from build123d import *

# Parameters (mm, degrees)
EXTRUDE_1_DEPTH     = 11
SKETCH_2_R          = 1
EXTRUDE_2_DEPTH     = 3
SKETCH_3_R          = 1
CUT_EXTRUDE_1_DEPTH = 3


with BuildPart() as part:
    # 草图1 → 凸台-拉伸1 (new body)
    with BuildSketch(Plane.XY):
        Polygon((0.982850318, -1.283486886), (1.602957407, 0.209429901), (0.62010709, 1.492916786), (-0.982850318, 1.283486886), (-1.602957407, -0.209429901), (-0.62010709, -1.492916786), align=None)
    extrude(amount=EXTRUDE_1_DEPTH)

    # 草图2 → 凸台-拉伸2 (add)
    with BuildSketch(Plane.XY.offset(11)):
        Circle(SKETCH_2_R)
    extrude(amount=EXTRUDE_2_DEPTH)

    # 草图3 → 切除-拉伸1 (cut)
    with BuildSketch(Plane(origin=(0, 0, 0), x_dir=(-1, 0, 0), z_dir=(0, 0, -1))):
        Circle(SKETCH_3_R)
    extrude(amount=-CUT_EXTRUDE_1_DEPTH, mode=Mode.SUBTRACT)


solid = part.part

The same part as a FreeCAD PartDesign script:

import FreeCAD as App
import Part
import Sketcher
from FreeCAD import Vector

doc = App.newDocument("Part")
body = doc.addObject("PartDesign::Body", "Body")

sketch1 = doc.addObject("Sketcher::SketchObject", "Sketch")
body.addObject(sketch1)
sketch1.AttachmentSupport = (doc.XY_Plane, [""])
sketch1.MapMode = "FlatFace"
sketch1.addGeometry([
    Part.LineSegment(Vector(1, -1.3, 0), Vector(1.6, 0.2, 0)),
    Part.LineSegment(Vector(1.6, 0.2, 0), Vector(0.6, 1.5, 0)),
    Part.LineSegment(Vector(0.6, 1.5, 0), Vector(-1, 1.3, 0)),
    Part.LineSegment(Vector(-1, 1.3, 0), Vector(-1.6, -0.2, 0)),
    Part.LineSegment(Vector(-1.6, -0.2, 0), Vector(-0.6, -1.5, 0)),
    Part.LineSegment(Vector(-0.6, -1.5, 0), Vector(1, -1.3, 0)),
], False)
sketch1.addConstraint([
    Sketcher.Constraint("Coincident", 0, 2, 1, 1),
    Sketcher.Constraint("Coincident", 1, 2, 2, 1),
    Sketcher.Constraint("Coincident", 2, 2, 3, 1),
    Sketcher.Constraint("Coincident", 3, 2, 4, 1),
    Sketcher.Constraint("Coincident", 4, 2, 5, 1),
    Sketcher.Constraint("Coincident", 5, 2, 0, 1),
    Sketcher.Constraint("Symmetric", 0, 2, 3, 2, -1, 1),
    Sketcher.Constraint("Symmetric", 1, 2, 4, 2, -1, 1),
    Sketcher.Constraint("Symmetric", 2, 2, 5, 2, -1, 1),
    Sketcher.Constraint("Equal", 0, 1),
    Sketcher.Constraint("Equal", 1, 2),
    Sketcher.Constraint("DistanceX", 2, 2, 5, 2, 1.965701),
    Sketcher.Constraint("Distance", 0, 1.616581),
    Sketcher.Constraint("DistanceY", -1, 1, 0, 2, 0.20943),
    Sketcher.Constraint("DistanceX", 1, 2, 0, 2, 0.98285),
])
pad1 = doc.addObject("PartDesign::Pad", "Pad")
body.addObject(pad1)
pad1.Profile = sketch1
pad1.Length = 11

sketch2 = doc.addObject("Sketcher::SketchObject", "Sketch001")
body.addObject(sketch2)
sketch2.AttachmentSupport = (doc.XY_Plane, [""])
sketch2.MapMode = "FlatFace"
sketch2.AttachmentOffset = App.Placement(Vector(0, 0, 11), App.Rotation())
sketch2.addGeometry(Part.Circle(Vector(0, 0, 0), Vector(0, 0, 1), 1), False)
sketch2.addConstraint([
    Sketcher.Constraint("Coincident", 0, 3, -1, 1),
    Sketcher.Constraint("Diameter", 0, 2.0),
])
pad2 = doc.addObject("PartDesign::Pad", "Pad001")
body.addObject(pad2)
pad2.Profile = sketch2
pad2.Length = 3

sketch3 = doc.addObject("Sketcher::SketchObject", "Sketch002")
body.addObject(sketch3)
sketch3.AttachmentSupport = (doc.XY_Plane, [""])
sketch3.MapMode = "FlatFace"
sketch3.addGeometry(Part.Circle(Vector(0, 0, 0), Vector(0, 0, 1), 1), False)
sketch3.addConstraint([
    Sketcher.Constraint("Coincident", 0, 3, -1, 1),
    Sketcher.Constraint("Diameter", 0, 2.0),
])
pocket1 = doc.addObject("PartDesign::Pocket", "Pocket")
body.addObject(pocket1)
pocket1.Profile = sketch3
pocket1.Length = 3
pocket1.Reversed = True

doc.recompute()
